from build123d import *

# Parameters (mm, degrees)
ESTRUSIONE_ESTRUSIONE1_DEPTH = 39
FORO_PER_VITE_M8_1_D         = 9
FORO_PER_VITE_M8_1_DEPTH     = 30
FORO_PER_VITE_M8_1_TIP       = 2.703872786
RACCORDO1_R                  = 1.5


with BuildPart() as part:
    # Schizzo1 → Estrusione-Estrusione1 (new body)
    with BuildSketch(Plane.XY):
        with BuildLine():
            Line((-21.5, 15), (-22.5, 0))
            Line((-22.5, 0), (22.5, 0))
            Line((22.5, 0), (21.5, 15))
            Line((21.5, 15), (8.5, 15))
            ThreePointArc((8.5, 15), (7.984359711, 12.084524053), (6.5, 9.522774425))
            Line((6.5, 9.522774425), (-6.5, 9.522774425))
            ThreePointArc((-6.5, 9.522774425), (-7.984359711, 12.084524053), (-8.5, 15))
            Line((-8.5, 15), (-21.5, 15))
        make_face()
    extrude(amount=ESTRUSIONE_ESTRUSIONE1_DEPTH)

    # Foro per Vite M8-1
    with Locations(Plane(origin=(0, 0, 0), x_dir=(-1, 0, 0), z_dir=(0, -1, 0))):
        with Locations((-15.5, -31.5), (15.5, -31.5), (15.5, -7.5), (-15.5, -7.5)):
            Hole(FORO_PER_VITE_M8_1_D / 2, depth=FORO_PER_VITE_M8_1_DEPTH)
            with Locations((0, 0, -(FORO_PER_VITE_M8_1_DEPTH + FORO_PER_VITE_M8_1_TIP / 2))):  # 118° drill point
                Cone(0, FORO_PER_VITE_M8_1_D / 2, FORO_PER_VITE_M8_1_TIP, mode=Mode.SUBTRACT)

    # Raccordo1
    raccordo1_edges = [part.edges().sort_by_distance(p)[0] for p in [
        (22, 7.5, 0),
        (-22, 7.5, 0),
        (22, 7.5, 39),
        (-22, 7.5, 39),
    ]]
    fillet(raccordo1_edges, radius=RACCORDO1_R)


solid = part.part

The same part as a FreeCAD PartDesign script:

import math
import FreeCAD as App
import Part
import Sketcher

V = App.Vector
Q = App.Units.Quantity


def edges_at(feature, points):
    """Names of the edges that pass closest to the given points."""
    edges = feature.Shape.Edges
    near = lambda p: min(range(len(edges)), key=lambda i: edges[i].distToShape(Part.Vertex(*p))[0])
    return sorted({f"Edge{near(p) + 1}" for p in points})

doc = App.newDocument("Part")
body = doc.addObject("PartDesign::Body", "Body")

sketch1 = body.newObject("Sketcher::SketchObject", "Sketch")
sketch1.AttachmentSupport = (doc.getObject("XY_Plane"), [""])
sketch1.MapMode = "FlatFace"
sketch1.addGeometry([
    Part.LineSegment(V(-21.5, 15, 0), V(-22.5, 0, 0)),
    Part.LineSegment(V(-22.5, 0, 0), V(22.5, 0, 0)),
    Part.LineSegment(V(22.5, 0, 0), V(21.5, 15, 0)),
    Part.LineSegment(V(21.5, 15, 0), V(8.5, 15, 0)),
    Part.ArcOfCircle(Part.Circle(V(0, 15, 0), V(0, 0, 1), 8.5), math.radians(-40.119167), math.radians(0)),
    Part.LineSegment(V(6.5, 9.522774, 0), V(-6.5, 9.522774, 0)),
    Part.ArcOfCircle(Part.Circle(V(0, 15, 0), V(0, 0, 1), 8.5), math.radians(-180), math.radians(-139.880833)),
    Part.LineSegment(V(-8.5, 15, 0), V(-21.5, 15, 0)),
], False)
sketch1.addConstraint([
    Sketcher.Constraint("Coincident", 0, 2, 1, 1),
    Sketcher.Constraint("Coincident", 1, 2, 2, 1),
    Sketcher.Constraint("Coincident", 2, 2, 3, 1),
    Sketcher.Constraint("Coincident", 3, 2, 4, 2),
    Sketcher.Constraint("Coincident", 4, 1, 5, 1),
    Sketcher.Constraint("Coincident", 5, 2, 6, 2),
    Sketcher.Constraint("Coincident", 6, 1, 7, 1),
    Sketcher.Constraint("Coincident", 7, 2, 0, 1),
    Sketcher.Constraint("Horizontal", 1),
    Sketcher.Constraint("Horizontal", 3),
    Sketcher.Constraint("Horizontal", 5),
    Sketcher.Constraint("Horizontal", 7),
    Sketcher.Constraint("Coincident", 6, 3, 4, 3),
    Sketcher.Constraint("Equal", 4, 6),
    Sketcher.Constraint("Symmetric", 0, 2, 1, 2, -1, 1),
    Sketcher.Constraint("Symmetric", 3, 2, 6, 1, -2),
    Sketcher.Constraint("Horizontal", 6, 3, 2, 2),
    Sketcher.Constraint("Equal", 3, 5),
    Sketcher.Constraint("Equal", 5, 7),
    Sketcher.Constraint("Radius", 4, Q("8.5 mm")),
    Sketcher.Constraint("DistanceX", 1, 1, 1, 2, Q("45 mm")),
    Sketcher.Constraint("DistanceX", 3, 2, 3, 1, Q("13 mm")),
    Sketcher.Constraint("DistanceY", -1, 1, 4, 3, Q("15 mm")),
])
pad1 = body.newObject("PartDesign::Pad", "Pad")
pad1.Profile = sketch1
pad1.Length = 39

sketch2 = body.newObject("Sketcher::SketchObject", "Sketch001")
sketch2.AttachmentSupport = (doc.getObject("XZ_Plane"), [""])
sketch2.MapMode = "FlatFace"
sketch2.addGeometry([
    Part.Circle(V(15.5, 31.5, 0), V(0, 0, 1), 4.5),
    Part.Circle(V(-15.5, 31.5, 0), V(0, 0, 1), 4.5),
    Part.Circle(V(-15.5, 7.5, 0), V(0, 0, 1), 4.5),
    Part.Circle(V(15.5, 7.5, 0), V(0, 0, 1), 4.5),
], False)
sketch2.addConstraint([
    Sketcher.Constraint("Equal", 0, 1),
    Sketcher.Constraint("Equal", 1, 2),
    Sketcher.Constraint("Equal", 2, 3),
    Sketcher.Constraint("Symmetric", 0, 3, 1, 3, -2),
    Sketcher.Constraint("Symmetric", 2, 3, 3, 3, -2),
    Sketcher.Constraint("Vertical", 1, 3, 2, 3),
    Sketcher.Constraint("Diameter", 0, Q("9 mm")),
    Sketcher.Constraint("DistanceX", 1, 3, 0, 3, Q("31 mm")),
    Sketcher.Constraint("DistanceY", 2, 3, 1, 3, Q("24 mm")),
    Sketcher.Constraint("DistanceY", -1, 1, 0, 3, Q("31.5 mm")),
])
doc.recompute()
hole = body.newObject("PartDesign::Hole", "Hole")
hole.Profile = sketch2
hole.ThreadType = "None"
hole.Diameter = 9
hole.DepthType = "Dimension"
hole.Depth = 30
hole.DrillPoint = "Angled"
hole.DrillPointAngle = 118
doc.recompute()

fillet = body.newObject("PartDesign::Fillet", "Fillet")
fillet.Base = (hole, edges_at(hole, [
    (22, 7.5, 0),
    (-22, 7.5, 0),
    (22, 7.5, 39),
    (-22, 7.5, 39),
]))
fillet.Radius = 1.5

doc.recompute()
